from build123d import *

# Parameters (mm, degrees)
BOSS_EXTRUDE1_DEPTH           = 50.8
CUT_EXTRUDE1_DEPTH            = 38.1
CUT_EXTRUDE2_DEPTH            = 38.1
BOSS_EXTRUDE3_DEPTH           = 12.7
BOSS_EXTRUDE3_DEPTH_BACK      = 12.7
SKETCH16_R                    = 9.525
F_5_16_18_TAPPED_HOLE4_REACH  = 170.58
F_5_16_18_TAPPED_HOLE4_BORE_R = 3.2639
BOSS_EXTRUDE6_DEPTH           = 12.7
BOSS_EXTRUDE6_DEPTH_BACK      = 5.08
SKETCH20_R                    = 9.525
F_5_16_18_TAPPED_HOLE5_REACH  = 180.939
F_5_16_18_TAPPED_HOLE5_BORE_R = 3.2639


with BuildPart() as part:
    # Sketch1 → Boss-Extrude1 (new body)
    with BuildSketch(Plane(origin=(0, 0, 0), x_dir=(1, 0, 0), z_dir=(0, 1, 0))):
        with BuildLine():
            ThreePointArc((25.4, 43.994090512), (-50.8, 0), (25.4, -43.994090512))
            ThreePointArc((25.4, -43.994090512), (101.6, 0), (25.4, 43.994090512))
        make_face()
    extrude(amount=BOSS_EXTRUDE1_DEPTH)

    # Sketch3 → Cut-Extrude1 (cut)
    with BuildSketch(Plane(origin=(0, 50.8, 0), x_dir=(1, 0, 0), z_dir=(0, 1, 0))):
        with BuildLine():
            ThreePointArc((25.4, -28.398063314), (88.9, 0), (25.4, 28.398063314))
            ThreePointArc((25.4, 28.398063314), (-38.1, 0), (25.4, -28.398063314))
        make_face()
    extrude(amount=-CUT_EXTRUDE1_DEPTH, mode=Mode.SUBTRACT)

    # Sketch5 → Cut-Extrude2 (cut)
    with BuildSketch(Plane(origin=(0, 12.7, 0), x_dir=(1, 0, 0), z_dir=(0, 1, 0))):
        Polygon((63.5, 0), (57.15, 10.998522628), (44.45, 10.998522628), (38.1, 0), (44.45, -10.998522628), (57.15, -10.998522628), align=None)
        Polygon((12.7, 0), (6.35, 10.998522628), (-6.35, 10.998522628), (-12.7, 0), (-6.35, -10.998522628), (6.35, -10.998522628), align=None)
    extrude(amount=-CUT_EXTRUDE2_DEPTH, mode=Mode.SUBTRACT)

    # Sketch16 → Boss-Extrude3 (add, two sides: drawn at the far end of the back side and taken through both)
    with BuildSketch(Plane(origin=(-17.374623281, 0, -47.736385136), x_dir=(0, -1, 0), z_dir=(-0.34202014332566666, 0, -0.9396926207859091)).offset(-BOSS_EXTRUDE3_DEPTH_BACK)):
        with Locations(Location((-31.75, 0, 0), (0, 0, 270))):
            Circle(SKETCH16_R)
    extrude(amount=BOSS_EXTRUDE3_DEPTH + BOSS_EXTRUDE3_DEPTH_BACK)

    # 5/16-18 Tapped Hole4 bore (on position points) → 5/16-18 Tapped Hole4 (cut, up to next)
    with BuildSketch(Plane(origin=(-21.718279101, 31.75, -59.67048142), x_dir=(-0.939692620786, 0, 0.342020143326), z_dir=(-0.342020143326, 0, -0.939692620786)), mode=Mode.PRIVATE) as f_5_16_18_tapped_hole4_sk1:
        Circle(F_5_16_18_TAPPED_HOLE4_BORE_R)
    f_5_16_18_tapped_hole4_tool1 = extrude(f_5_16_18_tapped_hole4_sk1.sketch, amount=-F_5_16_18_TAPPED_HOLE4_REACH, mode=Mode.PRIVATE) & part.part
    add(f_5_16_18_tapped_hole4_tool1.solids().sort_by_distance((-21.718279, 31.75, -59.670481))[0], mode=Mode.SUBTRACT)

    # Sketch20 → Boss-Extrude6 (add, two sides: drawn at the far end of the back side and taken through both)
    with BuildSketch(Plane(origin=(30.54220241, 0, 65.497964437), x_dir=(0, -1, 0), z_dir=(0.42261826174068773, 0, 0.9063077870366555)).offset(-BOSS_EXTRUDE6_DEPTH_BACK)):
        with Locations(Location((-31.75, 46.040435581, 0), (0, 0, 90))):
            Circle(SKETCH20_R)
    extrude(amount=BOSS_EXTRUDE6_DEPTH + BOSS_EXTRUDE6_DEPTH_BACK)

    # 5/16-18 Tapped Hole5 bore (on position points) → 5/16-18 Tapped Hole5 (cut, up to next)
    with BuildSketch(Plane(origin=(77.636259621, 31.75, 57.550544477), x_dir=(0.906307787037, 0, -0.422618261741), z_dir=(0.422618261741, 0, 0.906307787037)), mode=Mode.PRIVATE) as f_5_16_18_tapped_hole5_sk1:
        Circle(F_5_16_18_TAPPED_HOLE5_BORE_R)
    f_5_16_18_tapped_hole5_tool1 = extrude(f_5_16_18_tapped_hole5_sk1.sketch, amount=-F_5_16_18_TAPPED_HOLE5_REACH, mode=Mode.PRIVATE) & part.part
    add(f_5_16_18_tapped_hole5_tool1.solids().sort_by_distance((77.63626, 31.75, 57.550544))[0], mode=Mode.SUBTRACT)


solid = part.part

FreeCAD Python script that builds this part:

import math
import FreeCAD as App
import Part
import Sketcher
from FreeCAD import Vector
Q = App.Units.Quantity


def add_polygon(sketch, points):
    """Adds a closed chain of lines whose ends are joined by coincident constraints."""
    first, n = sketch.GeometryCount, len(points)
    for a, b in zip(points, points[1:] + points[:1]):
        sketch.addGeometry(Part.LineSegment(App.Vector(*a, 0), App.Vector(*b, 0)), False)
    for i in range(n):
        sketch.addConstraint(Sketcher.Constraint("Coincident", first + i, 2, first + (i + 1) % n, 1))

doc = App.newDocument("Part")
body = doc.addObject("PartDesign::Body", "Body")

sketch1 = body.newObject("Sketcher::SketchObject", "Sketch")
sketch1.AttachmentSupport = (doc.getObject("XZ_Plane"), [""])
sketch1.MapMode = "FlatFace"
sketch1.addGeometry([
    Part.ArcOfCircle(Part.Circle(Vector(0, 0, 0), Vector(0, 0, 1), 51), math.radians(60), math.radians(300)),
    Part.ArcOfCircle(Part.Circle(Vector(51, 0, 0), Vector(0, 0, 1), 51), math.radians(-120), math.radians(120)),
], False)
sketch1.addConstraint([
    Sketcher.Constraint("Coincident", 0, 1, 1, 2),
    Sketcher.Constraint("Coincident", 1, 1, 0, 2),
    Sketcher.Constraint("Coincident", 0, 3, -1, 1),
    Sketcher.Constraint("Equal", 0, 1),
    Sketcher.Constraint("PointOnObject", 1, 3, -1),
    Sketcher.Constraint("Radius", 0, Q("2 in")),
    Sketcher.Constraint("DistanceX", -1, 1, 1, 3, Q("2 in")),
])
pad1 = body.newObject("PartDesign::Pad", "Pad")
pad1.Profile = sketch1
pad1.Length = Q("2 in")
pad1.Reversed = True

sketch2 = body.newObject("Sketcher::SketchObject", "Sketch001")
sketch2.AttachmentSupport = (doc.getObject("XZ_Plane"), [""])
sketch2.MapMode = "FlatFace"
sketch2.AttachmentOffset = App.Placement(Vector(0, 0, -2 * 25.4), App.Rotation())
sketch2.addGeometry([
    Part.ArcOfCircle(Part.Circle(Vector(51, 0, 0), Vector(0, 0, 1), 38), math.radians(-132), math.radians(132)),
    Part.ArcOfCircle(Part.Circle(Vector(0, 0, 0), Vector(0, 0, 1), 38), math.radians(48), math.radians(312)),
], False)
sketch2.addConstraint([
    Sketcher.Constraint("Coincident", 0, 1, 1, 2),
    Sketcher.Constraint("Coincident", 1, 1, 0, 2),
    Sketcher.Constraint("Coincident", 1, 3, -1, 1),
    Sketcher.Constraint("Equal", 0, 1),
    Sketcher.Constraint("PointOnObject", 0, 3, -1),
    Sketcher.Constraint("Radius", 0, Q("1.5 in")),
    Sketcher.Constraint("DistanceX", -1, 1, 0, 3, Q("2 in")),
])
pocket1 = body.newObject("PartDesign::Pocket", "Pocket")
pocket1.Profile = sketch2
pocket1.Length = Q("1.5 in")
pocket1.Reversed = True

sketch3 = body.newObject("Sketcher::SketchObject", "Sketch002")
sketch3.AttachmentSupport = (doc.getObject("XZ_Plane"), [""])
sketch3.MapMode = "FlatFace"
sketch3.AttachmentOffset = App.Placement(Vector(0, 0, -0.5 * 25.4), App.Rotation())
add_polygon(sketch3, [(64, 0), (57, -11), (44, -11), (38, 0), (44, 11), (57, 11)])
add_polygon(sketch3, [(13, 0), (6, -11), (-6, -11), (-13, 0), (-6, 11), (6, 11)])
sketch3.addConstraint([
    Sketcher.Constraint("Horizontal", 1),
    Sketcher.Constraint("Horizontal", 4),
    Sketcher.Constraint("Horizontal", 7),
    Sketcher.Constraint("Horizontal", 10),
    Sketcher.Constraint("Symmetric", 6, 2, 9, 2, -1, 1),
    Sketcher.Constraint("Symmetric", 8, 2, 11, 2, -1, 1),
    Sketcher.Constraint("Symmetric", 1, 2, 3, 2, -1),
    Sketcher.Constraint("PointOnObject", 2, 2, -1),
    Sketcher.Constraint("PointOnObject", 5, 2, -1),
    Sketcher.Constraint("PointOnObject", 8, 2, -1),
    Sketcher.Constraint("Parallel", 0, 3),
    Sketcher.Constraint("Parallel", 2, 5),
    Sketcher.Constraint("Parallel", 3, 6),
    Sketcher.Constraint("Parallel", 5, 8),
    Sketcher.Constraint("Parallel", 8, 11),
    Sketcher.Constraint("Horizontal", 1, 2, 6, 2),
    Sketcher.Constraint("Equal", 4, 7),
    Sketcher.Constraint("DistanceX", 1, 2, 1, 1, Q("0.5 in")),
    Sketcher.Constraint("Angle", 0, Q("-120 deg")),
    Sketcher.Constraint("DistanceX", 2, 2, 5, 2, Q("1 in")),
    Sketcher.Constraint("DistanceX", 6, 2, 0, 2, Q("2 in")),
])
pocket2 = body.newObject("PartDesign::Pocket", "Pocket001")
pocket2.Profile = sketch3
pocket2.Length = Q("1.5 in")
pocket2.Reversed = True

sketch4 = body.newObject("Sketcher::SketchObject", "Sketch003")
sketch4.Placement = App.Placement(Vector(-17.374623, 0, -47.736385), App.Rotation(Vector(0, -1, 0), Vector(-0.939692621, 0, 0.342020143), Vector(-0.342020143, 0, -0.939692621), "ZXY"))
sketch4.addGeometry(Part.Circle(Vector(-32, 0, 0), Vector(0, 0, 1), 10), False)
sketch4.addConstraint([
    Sketcher.Constraint("PointOnObject", 0, 3, -1),
    Sketcher.Constraint("Diameter", 0, Q("0.75 in")),
    Sketcher.Constraint("DistanceX", 0, 3, -1, 1, Q("1.25 in")),
])
pad2 = body.newObject("PartDesign::Pad", "Pad001")
pad2.Profile = sketch4
pad2.Type = "TwoLengths"
pad2.Length = Q("0.5 in")
pad2.Length2 = Q("0.5 in")

sketch5 = body.newObject("Sketcher::SketchObject", "Sketch004")
sketch5.Placement = App.Placement(Vector(-21.718279, 31.75, -59.670481), App.Rotation(Vector(-0.939692621, 0, 0.342020143), Vector(0, 1, 0), Vector(-0.342020143, 0, -0.939692621), "ZXY"))
sketch5.addGeometry(Part.Circle(Vector(0, 0, 0), Vector(0, 0, 1), 3.3), False)
sketch5.addConstraint([
    Sketcher.Constraint("Coincident", 0, 3, -1, 1),
    Sketcher.Constraint("Diameter", 0, Q("0.257 in")),
])
pocket3 = body.newObject("PartDesign::Pocket", "Pocket002")
pocket3.Profile = sketch5
pocket3.Length = 25.540061

sketch6 = body.newObject("Sketcher::SketchObject", "Sketch005")
sketch6.Placement = App.Placement(Vector(30.542202, 0, 65.497964), App.Rotation(Vector(0, -1, 0), Vector(0.906307787, 0, -0.422618262), Vector(0.422618262, 0, 0.906307787), "ZXY"))
sketch6.addGeometry(Part.Circle(Vector(-32, 46, 0), Vector(0, 0, 1), 10), False)
sketch6.addConstraint([
    Sketcher.Constraint("Diameter", 0, Q("0.75 in")),
    Sketcher.Constraint("DistanceX", 0, 3, -1, 1, Q("1.25 in")),
    Sketcher.Constraint("DistanceY", -1, 1, 0, 3, 46.040436),
])
pad3 = body.newObject("PartDesign::Pad", "Pad002")
pad3.Profile = sketch6
pad3.Type = "TwoLengths"
pad3.Length = Q("0.5 in")
pad3.Length2 = Q("0.2 in")

sketch7 = body.newObject("Sketcher::SketchObject", "Sketch006")
sketch7.Placement = App.Placement(Vector(77.63626, 31.75, 57.550544), App.Rotation(Vector(0.906307787, 0, -0.422618262), Vector(0, 1, 0), Vector(0.422618262, 0, 0.906307787), "ZXY"))
sketch7.addGeometry(Part.Circle(Vector(0, 0, 0), Vector(0, 0, 1), 3.3), False)
sketch7.addConstraint([
    Sketcher.Constraint("Coincident", 0, 3, -1, 1),
    Sketcher.Constraint("Diameter", 0, Q("0.257 in")),
])
pocket4 = body.newObject("PartDesign::Pocket", "Pocket003")
pocket4.Profile = sketch7
pocket4.Type = "UpToFirst"

doc.recompute()
